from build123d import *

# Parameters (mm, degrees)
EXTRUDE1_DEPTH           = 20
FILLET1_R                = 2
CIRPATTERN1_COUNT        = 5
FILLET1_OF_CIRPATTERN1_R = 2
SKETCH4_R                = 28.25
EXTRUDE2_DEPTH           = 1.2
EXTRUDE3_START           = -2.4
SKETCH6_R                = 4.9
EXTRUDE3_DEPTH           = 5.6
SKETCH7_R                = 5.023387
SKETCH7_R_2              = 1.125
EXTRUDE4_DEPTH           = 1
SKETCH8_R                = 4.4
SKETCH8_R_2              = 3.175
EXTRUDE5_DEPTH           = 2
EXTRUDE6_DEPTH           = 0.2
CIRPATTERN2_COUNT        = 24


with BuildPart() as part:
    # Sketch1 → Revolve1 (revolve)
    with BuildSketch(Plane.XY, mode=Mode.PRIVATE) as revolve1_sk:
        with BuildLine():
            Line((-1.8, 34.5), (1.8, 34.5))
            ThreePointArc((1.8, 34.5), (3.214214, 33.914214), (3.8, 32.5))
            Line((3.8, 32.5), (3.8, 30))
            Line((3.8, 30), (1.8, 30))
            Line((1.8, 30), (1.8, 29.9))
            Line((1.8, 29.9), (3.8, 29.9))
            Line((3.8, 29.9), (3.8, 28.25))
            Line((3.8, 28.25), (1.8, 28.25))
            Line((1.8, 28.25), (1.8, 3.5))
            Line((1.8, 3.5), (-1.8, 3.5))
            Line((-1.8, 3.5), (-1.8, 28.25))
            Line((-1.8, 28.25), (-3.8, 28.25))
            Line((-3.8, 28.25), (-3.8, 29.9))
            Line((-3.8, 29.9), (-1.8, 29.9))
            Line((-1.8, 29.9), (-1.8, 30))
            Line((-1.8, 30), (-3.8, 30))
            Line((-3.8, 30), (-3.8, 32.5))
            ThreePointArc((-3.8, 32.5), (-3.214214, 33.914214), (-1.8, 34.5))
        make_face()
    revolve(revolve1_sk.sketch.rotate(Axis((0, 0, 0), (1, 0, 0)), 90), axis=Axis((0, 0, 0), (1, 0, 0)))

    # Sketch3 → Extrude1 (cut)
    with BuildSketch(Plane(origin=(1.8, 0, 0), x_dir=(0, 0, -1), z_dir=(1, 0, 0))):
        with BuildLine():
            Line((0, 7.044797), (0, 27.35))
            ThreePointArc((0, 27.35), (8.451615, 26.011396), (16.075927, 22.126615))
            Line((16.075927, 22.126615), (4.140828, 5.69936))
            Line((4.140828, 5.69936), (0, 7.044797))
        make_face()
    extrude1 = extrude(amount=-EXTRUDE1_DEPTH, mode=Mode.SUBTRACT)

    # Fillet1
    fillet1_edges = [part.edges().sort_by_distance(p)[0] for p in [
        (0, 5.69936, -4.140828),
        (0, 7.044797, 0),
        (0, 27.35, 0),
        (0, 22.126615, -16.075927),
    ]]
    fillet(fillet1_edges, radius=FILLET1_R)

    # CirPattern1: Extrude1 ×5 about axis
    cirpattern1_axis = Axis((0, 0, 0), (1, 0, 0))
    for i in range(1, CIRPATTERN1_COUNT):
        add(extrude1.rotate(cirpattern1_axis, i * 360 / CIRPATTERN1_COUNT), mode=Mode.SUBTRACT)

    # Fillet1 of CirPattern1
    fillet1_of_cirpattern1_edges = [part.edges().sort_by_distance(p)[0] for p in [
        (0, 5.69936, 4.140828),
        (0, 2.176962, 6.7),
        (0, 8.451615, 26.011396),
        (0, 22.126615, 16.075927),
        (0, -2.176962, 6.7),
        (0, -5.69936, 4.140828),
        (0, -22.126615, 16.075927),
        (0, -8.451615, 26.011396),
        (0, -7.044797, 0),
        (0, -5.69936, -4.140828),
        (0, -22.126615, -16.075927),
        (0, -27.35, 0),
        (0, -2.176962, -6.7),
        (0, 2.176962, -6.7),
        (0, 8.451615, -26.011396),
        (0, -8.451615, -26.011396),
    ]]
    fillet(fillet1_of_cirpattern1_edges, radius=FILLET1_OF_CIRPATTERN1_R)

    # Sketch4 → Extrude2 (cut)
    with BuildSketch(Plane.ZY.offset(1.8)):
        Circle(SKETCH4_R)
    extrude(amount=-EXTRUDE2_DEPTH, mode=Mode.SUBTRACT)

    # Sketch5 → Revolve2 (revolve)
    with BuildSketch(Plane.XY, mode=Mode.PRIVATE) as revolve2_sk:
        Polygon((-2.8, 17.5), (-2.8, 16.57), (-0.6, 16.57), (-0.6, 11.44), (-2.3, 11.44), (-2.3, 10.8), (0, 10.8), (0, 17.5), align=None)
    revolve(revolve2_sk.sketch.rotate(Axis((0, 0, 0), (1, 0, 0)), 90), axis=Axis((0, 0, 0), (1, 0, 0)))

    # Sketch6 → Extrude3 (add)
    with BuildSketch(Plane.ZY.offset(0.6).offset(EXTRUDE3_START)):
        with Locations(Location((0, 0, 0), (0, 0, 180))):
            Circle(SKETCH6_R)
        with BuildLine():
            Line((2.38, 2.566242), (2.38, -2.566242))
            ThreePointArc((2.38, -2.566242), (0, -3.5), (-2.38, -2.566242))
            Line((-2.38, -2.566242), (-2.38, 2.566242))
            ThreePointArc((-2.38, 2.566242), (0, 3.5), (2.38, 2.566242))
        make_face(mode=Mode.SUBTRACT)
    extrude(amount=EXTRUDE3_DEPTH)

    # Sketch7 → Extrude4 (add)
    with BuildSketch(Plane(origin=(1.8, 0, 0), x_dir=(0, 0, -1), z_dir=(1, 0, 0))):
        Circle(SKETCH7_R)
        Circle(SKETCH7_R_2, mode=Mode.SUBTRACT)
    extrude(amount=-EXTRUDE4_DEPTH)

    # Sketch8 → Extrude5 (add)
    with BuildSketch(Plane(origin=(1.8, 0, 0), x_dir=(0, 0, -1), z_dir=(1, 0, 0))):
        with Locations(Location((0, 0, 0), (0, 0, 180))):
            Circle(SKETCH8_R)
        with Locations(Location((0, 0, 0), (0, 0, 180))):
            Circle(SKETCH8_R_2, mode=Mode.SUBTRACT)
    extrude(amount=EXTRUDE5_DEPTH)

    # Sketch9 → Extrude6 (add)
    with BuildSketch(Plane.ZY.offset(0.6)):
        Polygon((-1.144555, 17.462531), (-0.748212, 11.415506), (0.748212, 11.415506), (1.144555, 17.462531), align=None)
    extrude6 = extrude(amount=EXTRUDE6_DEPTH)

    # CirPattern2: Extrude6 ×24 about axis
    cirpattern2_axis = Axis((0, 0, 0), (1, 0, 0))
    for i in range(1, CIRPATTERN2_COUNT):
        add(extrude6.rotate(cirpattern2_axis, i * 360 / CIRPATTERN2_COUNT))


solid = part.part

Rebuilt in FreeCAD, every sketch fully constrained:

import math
import FreeCAD as App
import Part
import Sketcher

V = App.Vector
Q = App.Units.Quantity


def edges_at(feature, points):
    """Names of the edges that pass closest to the given points."""
    edges = feature.Shape.Edges
    near = lambda p: min(range(len(edges)), key=lambda i: edges[i].distToShape(Part.Vertex(*p))[0])
    return sorted({f"Edge{near(p) + 1}" for p in points})


def add_polygon(sketch, points):
    """Adds a closed chain of lines whose ends are joined by coincident constraints."""
    first, n = sketch.GeometryCount, len(points)
    for a, b in zip(points, points[1:] + points[:1]):
        sketch.addGeometry(Part.LineSegment(App.Vector(*a, 0), App.Vector(*b, 0)), False)
    for i in range(n):
        sketch.addConstraint(Sketcher.Constraint("Coincident", first + i, 2, first + (i + 1) % n, 1))

doc = App.newDocument("Part")
body = doc.addObject("PartDesign::Body", "Body")

# Sketch on XY plane
sketch1 = body.newObject("Sketcher::SketchObject", "Sketch")
sketch1.AttachmentSupport = (doc.getObject("XY_Plane"), [""])
sketch1.MapMode = "FlatFace"
sketch1.addGeometry(Part.LineSegment(V(1.8, 34.5, 0), V(-1.8, 34.5, 0)), False)
sketch1.addGeometry(Part.ArcOfCircle(Part.Circle(V(-1.8, 32.5, 0), V(0, 0, 1), 2), math.radians(90), math.radians(180)), False)
sketch1.addGeometry(Part.LineSegment(V(-3.8, 32.5, 0), V(-3.8, 30, 0)), False)
sketch1.addGeometry(Part.LineSegment(V(-3.8, 30, 0), V(-1.8, 30, 0)), False)
sketch1.addGeometry(Part.LineSegment(V(-1.8, 30, 0), V(-1.8, 29.9, 0)), False)
sketch1.addGeometry(Part.LineSegment(V(-1.8, 29.9, 0), V(-3.8, 29.9, 0)), False)
sketch1.addGeometry(Part.LineSegment(V(-3.8, 29.9, 0), V(-3.8, 28.25, 0)), False)
sketch1.addGeometry(Part.LineSegment(V(-3.8, 28.25, 0), V(-1.8, 28.25, 0)), False)
sketch1.addGeometry(Part.LineSegment(V(-1.8, 28.25, 0), V(-1.8, 3.5, 0)), False)
sketch1.addGeometry(Part.LineSegment(V(-1.8, 3.5, 0), V(1.8, 3.5, 0)), False)
sketch1.addGeometry(Part.LineSegment(V(1.8, 3.5, 0), V(1.8, 28.25, 0)), False)
sketch1.addGeometry(Part.LineSegment(V(1.8, 28.25, 0), V(3.8, 28.25, 0)), False)
sketch1.addGeometry(Part.LineSegment(V(3.8, 28.25, 0), V(3.8, 29.9, 0)), False)
sketch1.addGeometry(Part.LineSegment(V(3.8, 29.9, 0), V(1.8, 29.9, 0)), False)
sketch1.addGeometry(Part.LineSegment(V(1.8, 29.9, 0), V(1.8, 30, 0)), False)
sketch1.addGeometry(Part.LineSegment(V(1.8, 30, 0), V(3.8, 30, 0)), False)
sketch1.addGeometry(Part.LineSegment(V(3.8, 30, 0), V(3.8, 32.5, 0)), False)
sketch1.addGeometry(Part.ArcOfCircle(Part.Circle(V(1.8, 32.5, 0), V(0, 0, 1), 2), math.radians(0), math.radians(90)), False)
sketch1.addConstraint(Sketcher.Constraint("Tangent", 0, 2, 1, 1))
sketch1.addConstraint(Sketcher.Constraint("Tangent", 1, 2, 2, 1))
sketch1.addConstraint(Sketcher.Constraint("Coincident", 2, 2, 3, 1))
sketch1.addConstraint(Sketcher.Constraint("Coincident", 3, 2, 4, 1))
sketch1.addConstraint(Sketcher.Constraint("Coincident", 4, 2, 5, 1))
sketch1.addConstraint(Sketcher.Constraint("Coincident", 5, 2, 6, 1))
sketch1.addConstraint(Sketcher.Constraint("Coincident", 6, 2, 7, 1))
sketch1.addConstraint(Sketcher.Constraint("Coincident", 7, 2, 8, 1))
sketch1.addConstraint(Sketcher.Constraint("Coincident", 8, 2, 9, 1))
sketch1.addConstraint(Sketcher.Constraint("Coincident", 9, 2, 10, 1))
sketch1.addConstraint(Sketcher.Constraint("Coincident", 10, 2, 11, 1))
sketch1.addConstraint(Sketcher.Constraint("Coincident", 11, 2, 12, 1))
sketch1.addConstraint(Sketcher.Constraint("Coincident", 12, 2, 13, 1))
sketch1.addConstraint(Sketcher.Constraint("Coincident", 13, 2, 14, 1))
sketch1.addConstraint(Sketcher.Constraint("Coincident", 14, 2, 15, 1))
sketch1.addConstraint(Sketcher.Constraint("Coincident", 15, 2, 16, 1))
sketch1.addConstraint(Sketcher.Constraint("Tangent", 16, 2, 17, 1))
sketch1.addConstraint(Sketcher.Constraint("Tangent", 17, 2, 0, 1))
sketch1.addConstraint(Sketcher.Constraint("Horizontal", 0))
sketch1.addConstraint(Sketcher.Constraint("Vertical", 2))
sketch1.addConstraint(Sketcher.Constraint("Horizontal", 3))
sketch1.addConstraint(Sketcher.Constraint("Vertical", 4))
sketch1.addConstraint(Sketcher.Constraint("Horizontal", 5))
sketch1.addConstraint(Sketcher.Constraint("Vertical", 6))
sketch1.addConstraint(Sketcher.Constraint("Horizontal", 7))
sketch1.addConstraint(Sketcher.Constraint("Vertical", 8))
sketch1.addConstraint(Sketcher.Constraint("Horizontal", 9))
sketch1.addConstraint(Sketcher.Constraint("Vertical", 10))
sketch1.addConstraint(Sketcher.Constraint("Horizontal", 11))
sketch1.addConstraint(Sketcher.Constraint("Vertical", 12))
sketch1.addConstraint(Sketcher.Constraint("Horizontal", 13))
sketch1.addConstraint(Sketcher.Constraint("Vertical", 14))
sketch1.addConstraint(Sketcher.Constraint("Horizontal", 15))
sketch1.addConstraint(Sketcher.Constraint("Vertical", 16))
sketch1.addConstraint(Sketcher.Constraint("Equal", 1, 17))
sketch1.addConstraint(Sketcher.Constraint("Symmetric", 7, 2, 10, 2, -2))
sketch1.addConstraint(Sketcher.Constraint("Symmetric", 5, 2, 12, 2, -2))
sketch1.addConstraint(Sketcher.Constraint("Symmetric", 3, 2, 14, 2, -2))
sketch1.addConstraint(Sketcher.Constraint("Vertical", 0, 2, 3, 2))
sketch1.addConstraint(Sketcher.Constraint("Vertical", 2, 2, 5, 2))
sketch1.addConstraint(Sketcher.Constraint("Vertical", 4, 2, 7, 2))
sketch1.addConstraint(Sketcher.Constraint("Vertical", 17, 3, 9, 2))
sketch1.addConstraint(Sketcher.Constraint("Radius", 1, 1.999999))
sketch1.addConstraint(Sketcher.Constraint("DistanceX", 0, 2, 0, 1, 3.6))
sketch1.addConstraint(Sketcher.Constraint("DistanceY", 2, 2, 2, 1, 2.5))
sketch1.addConstraint(Sketcher.Constraint("DistanceY", 4, 2, 4, 1, 0.1))
sketch1.addConstraint(Sketcher.Constraint("DistanceY", -1, 1, 2, 2, 30.0))
sketch1.addConstraint(Sketcher.Constraint("DistanceY", 6, 2, 6, 1, 1.65))
sketch1.addConstraint(Sketcher.Constraint("DistanceY", 8, 2, 8, 1, 24.75))
revolution = body.newObject("PartDesign::Revolution", "Revolution")
revolution.Profile = sketch1
revolution.ReferenceAxis = (sketch1, ["H_Axis"])
revolution.Angle = 360

# Sketch on YZ plane
sketch2 = body.newObject("Sketcher::SketchObject", "Sketch001")
sketch2.AttachmentSupport = (doc.getObject("YZ_Plane"), [""])
sketch2.MapMode = "FlatFace"
sketch2.AttachmentOffset = App.Placement(V(0, 0, 1.8), App.Rotation())
sketch2.addGeometry(Part.LineSegment(V(27.4, 0, 0), V(7, 0, 0)), False)
sketch2.addGeometry(Part.LineSegment(V(7, 0, 0), V(5.7, -4.1, 0)), False)
sketch2.addGeometry(Part.LineSegment(V(5.7, -4.1, 0), V(22.1, -16.1, 0)), False)
sketch2.addGeometry(Part.ArcOfCircle(Part.Circle(V(0, 0, 0), V(0, 0, 1), 27.3), math.radians(-36), math.radians(0)), False)
sketch2.addConstraint(Sketcher.Constraint("Coincident", 0, 2, 1, 1))
sketch2.addConstraint(Sketcher.Constraint("Coincident", 1, 2, 2, 1))
sketch2.addConstraint(Sketcher.Constraint("Coincident", 2, 2, 3, 1))
sketch2.addConstraint(Sketcher.Constraint("Coincident", 3, 2, 0, 1))
sketch2.addConstraint(Sketcher.Constraint("Horizontal", 0))
sketch2.addConstraint(Sketcher.Constraint("Coincident", 3, 3, -1, 1))
sketch2.addConstraint(Sketcher.Constraint("PointOnObject", 0, 2, -1))
sketch2.addConstraint(Sketcher.Constraint("Angle", 1, Q("-108.000005 deg")))
sketch2.addConstraint(Sketcher.Constraint("Angle", 2, Q("-35.999999 deg")))
sketch2.addConstraint(Sketcher.Constraint("DistanceX", -1, 1, 3, 2, 27.35))
sketch2.addConstraint(Sketcher.Constraint("DistanceY", 2, 2, 1, 2, 11.935099))
sketch2.addConstraint(Sketcher.Constraint("DistanceX", 0, 2, 0, 1, 20.305203))
pocket1 = body.newObject("PartDesign::Pocket", "Pocket")
pocket1.Profile = sketch2
pocket1.Length = 20
doc.recompute()

fillet = body.newObject("PartDesign::Fillet", "Fillet")
fillet.Base = (pocket1, edges_at(pocket1, [
    (0, 5.699, -4.141),
    (0, 7.045, 0),
    (0, 27.35, 0),
    (0, 22.127, -16.076),
]))
fillet.Radius = 2
doc.recompute()

polarpattern = body.newObject("PartDesign::PolarPattern", "PolarPattern")
polarpattern.Originals = [pocket1]
polarpattern.Axis = (doc.getObject("X_Axis"), [""])
polarpattern.Angle = 360
polarpattern.Occurrences = 5
body.Tip = polarpattern
doc.recompute()

fillet2 = body.newObject("PartDesign::Fillet", "Fillet001")
fillet2.Base = (polarpattern, edges_at(polarpattern, [
    (0, 5.699, 4.141),
    (0, 2.177, 6.7),
    (0, 8.452, 26.011),
    (0, 22.127, 16.076),
    (0, -2.177, 6.7),
    (0, -5.699, 4.141),
    (0, -22.127, 16.076),
    (0, -8.452, 26.011),
    (0, -7.045, 0),
    (0, -5.699, -4.141),
    (0, -22.127, -16.076),
    (0, -27.35, 0),
    (0, -2.177, -6.7),
    (0, 2.177, -6.7),
    (0, 8.452, -26.011),
    (0, -8.452, -26.011),
]))
fillet2.Radius = 2

# Sketch on YZ plane
sketch3 = body.newObject("Sketcher::SketchObject", "Sketch002")
sketch3.AttachmentSupport = (doc.getObject("YZ_Plane"), [""])
sketch3.MapMode = "FlatFace"
sketch3.AttachmentOffset = App.Placement(V(0, 0, -1.8), App.Rotation())
sketch3.addGeometry(Part.Circle(V(0, 0, 0), V(0, 0, 1), 28), False)
sketch3.addConstraint(Sketcher.Constraint("Coincident", 0, 3, -1, 1))
sketch3.addConstraint(Sketcher.Constraint("Diameter", 0, 56.5))
pocket2 = body.newObject("PartDesign::Pocket", "Pocket001")
pocket2.Profile = sketch3
pocket2.Length = 1.2
pocket2.Reversed = True

# Sketch on XY plane
sketch4 = body.newObject("Sketcher::SketchObject", "Sketch003")
sketch4.AttachmentSupport = (doc.getObject("XY_Plane"), [""])
sketch4.MapMode = "FlatFace"
add_polygon(sketch4, [(-2.8, 17.5), (-2.8, 16.6), (-0.6, 16.6), (-0.6, 11.4), (-2.3, 11.4), (-2.3, 10.8), (0, 10.8), (0, 17.5)])  # lines 0-7
sketch4.addConstraint(Sketcher.Constraint("Vertical", 0))
sketch4.addConstraint(Sketcher.Constraint("Horizontal", 1))
sketch4.addConstraint(Sketcher.Constraint("Vertical", 2))
sketch4.addConstraint(Sketcher.Constraint("Horizontal", 3))
sketch4.addConstraint(Sketcher.Constraint("Vertical", 4))
sketch4.addConstraint(Sketcher.Constraint("Horizontal", 5))
sketch4.addConstraint(Sketcher.Constraint("Vertical", 6))
sketch4.addConstraint(Sketcher.Constraint("Horizontal", 7))
sketch4.addConstraint(Sketcher.Constraint("PointOnObject", 5, 2, -2))
sketch4.addConstraint(Sketcher.Constraint("DistanceX", 1, 1, 1, 2, 2.2))
sketch4.addConstraint(Sketcher.Constraint("DistanceX", 3, 2, 3, 1, 1.7))
sketch4.addConstraint(Sketcher.Constraint("DistanceX", 5, 1, 5, 2, 2.3))
sketch4.addConstraint(Sketcher.Constraint("DistanceY", 6, 1, 6, 2, 6.7))
sketch4.addConstraint(Sketcher.Constraint("DistanceY", 0, 2, 0, 1, 0.93))
sketch4.addConstraint(Sketcher.Constraint("DistanceY", 2, 2, 2, 1, 5.13))
sketch4.addConstraint(Sketcher.Constraint("DistanceY", -1, 1, 4, 2, 10.8))
revolution2 = body.newObject("PartDesign::Revolution", "Revolution001")
revolution2.Profile = sketch4
revolution2.ReferenceAxis = (sketch4, ["H_Axis"])
revolution2.Angle = 360

# Sketch on YZ plane
sketch5 = body.newObject("Sketcher::SketchObject", "Sketch004")
sketch5.AttachmentSupport = (doc.getObject("YZ_Plane"), [""])
sketch5.MapMode = "FlatFace"
sketch5.AttachmentOffset = App.Placement(V(0, 0, 1.8), App.Rotation())
sketch5.addGeometry(Part.Circle(V(0, 0, 0), V(0, 0, 1), 4.9), False)
sketch5.addGeometry(Part.ArcOfCircle(Part.Circle(V(0, 0, 0), V(0, 0, 1), 3.5), math.radians(-43), math.radians(43)), False)
sketch5.addGeometry(Part.LineSegment(V(2.6, 2.4, 0), V(-2.6, 2.4, 0)), False)
sketch5.addGeometry(Part.ArcOfCircle(Part.Circle(V(0, 0, 0), V(0, 0, 1), 3.5), math.radians(137), math.radians(223)), False)
sketch5.addGeometry(Part.LineSegment(V(-2.6, -2.4, 0), V(2.6, -2.4, 0)), False)
sketch5.addConstraint(Sketcher.Constraint("Coincident", 1, 2, 2, 1))
sketch5.addConstraint(Sketcher.Constraint("Coincident", 2, 2, 3, 1))
sketch5.addConstraint(Sketcher.Constraint("Coincident", 3, 2, 4, 1))
sketch5.addConstraint(Sketcher.Constraint("Coincident", 4, 2, 1, 1))
sketch5.addConstraint(Sketcher.Constraint("Horizontal", 2))
sketch5.addConstraint(Sketcher.Constraint("Horizontal", 4))
sketch5.addConstraint(Sketcher.Constraint("Coincident", 0, 3, -1, 1))
sketch5.addConstraint(Sketcher.Constraint("Coincident", 1, 3, -1, 1))
sketch5.addConstraint(Sketcher.Constraint("Coincident", 3, 3, -1, 1))
sketch5.addConstraint(Sketcher.Constraint("Equal", 1, 3))
sketch5.addConstraint(Sketcher.Constraint("Vertical", 2, 2, 3, 2))
sketch5.addConstraint(Sketcher.Constraint("Diameter", 0, 9.8))
sketch5.addConstraint(Sketcher.Constraint("Radius", 1, 3.499999))
sketch5.addConstraint(Sketcher.Constraint("DistanceY", -1, 1, 1, 2, 2.38))
pad1 = body.newObject("PartDesign::Pad", "Pad")
pad1.Profile = sketch5
pad1.Length = 5.6
pad1.Reversed = True

# Sketch on YZ plane
sketch6 = body.newObject("Sketcher::SketchObject", "Sketch005")
sketch6.AttachmentSupport = (doc.getObject("YZ_Plane"), [""])
sketch6.MapMode = "FlatFace"
sketch6.AttachmentOffset = App.Placement(V(0, 0, 1.8), App.Rotation())
sketch6.addGeometry(Part.Circle(V(0, 0, 0), V(0, 0, 1), 5), False)
sketch6.addGeometry(Part.Circle(V(0, 0, 0), V(0, 0, 1), 1.1), False)
sketch6.addConstraint(Sketcher.Constraint("Coincident", 0, 3, -1, 1))
sketch6.addConstraint(Sketcher.Constraint("Coincident", 1, 3, -1, 1))
sketch6.addConstraint(Sketcher.Constraint("Diameter", 1, 2.25))
sketch6.addConstraint(Sketcher.Constraint("Diameter", 0, 10.046774))
pad2 = body.newObject("PartDesign::Pad", "Pad001")
pad2.Profile = sketch6
pad2.Length = 1
pad2.Reversed = True

# Sketch on YZ plane
sketch7 = body.newObject("Sketcher::SketchObject", "Sketch006")
sketch7.AttachmentSupport = (doc.getObject("YZ_Plane"), [""])
sketch7.MapMode = "FlatFace"
sketch7.AttachmentOffset = App.Placement(V(0, 0, 1.8), App.Rotation())
sketch7.addGeometry(Part.Circle(V(0, 0, 0), V(0, 0, 1), 4.4), False)
sketch7.addGeometry(Part.Circle(V(0, 0, 0), V(0, 0, 1), 3.2), False)
sketch7.addConstraint(Sketcher.Constraint("Coincident", 0, 3, -1, 1))
sketch7.addConstraint(Sketcher.Constraint("Coincident", 1, 3, -1, 1))
sketch7.addConstraint(Sketcher.Constraint("Diameter", 0, 8.8))
sketch7.addConstraint(Sketcher.Constraint("Diameter", 1, 6.35))
pad3 = body.newObject("PartDesign::Pad", "Pad002")
pad3.Profile = sketch7
pad3.Length = 2

# Sketch on YZ plane
sketch8 = body.newObject("Sketcher::SketchObject", "Sketch007")
sketch8.AttachmentSupport = (doc.getObject("YZ_Plane"), [""])
sketch8.MapMode = "FlatFace"
sketch8.AttachmentOffset = App.Placement(V(0, 0, -0.6), App.Rotation())
add_polygon(sketch8, [(17.5, -1.1), (11.4, -0.7), (11.4, 0.7), (17.5, 1.1)])  # lines 0-3
sketch8.addConstraint(Sketcher.Constraint("Vertical", 1))
sketch8.addConstraint(Sketcher.Constraint("Vertical", 3))
sketch8.addConstraint(Sketcher.Constraint("Equal", 0, 2))
sketch8.addConstraint(Sketcher.Constraint("Angle", 0, Q("176.25 deg")))
sketch8.addConstraint(Sketcher.Constraint("Distance", 0, 6.06))
sketch8.addConstraint(Sketcher.Constraint("DistanceY", 3, 2, 3, 1, 2.28911))
sketch8.addConstraint(Sketcher.Constraint("DistanceY", 0, 2, -1, 1, 0.748212))
sketch8.addConstraint(Sketcher.Constraint("DistanceX", -1, 1, 2, 2, 17.462531))
pad4 = body.newObject("PartDesign::Pad", "Pad003")
pad4.Profile = sketch8
pad4.Length = 0.2
pad4.Reversed = True
doc.recompute()

polarpattern2 = body.newObject("PartDesign::PolarPattern", "PolarPattern001")
polarpattern2.Originals = [pad4]
polarpattern2.Axis = (doc.getObject("X_Axis"), [""])
polarpattern2.Angle = 360
polarpattern2.Occurrences = 24
body.Tip = polarpattern2

doc.recompute()
